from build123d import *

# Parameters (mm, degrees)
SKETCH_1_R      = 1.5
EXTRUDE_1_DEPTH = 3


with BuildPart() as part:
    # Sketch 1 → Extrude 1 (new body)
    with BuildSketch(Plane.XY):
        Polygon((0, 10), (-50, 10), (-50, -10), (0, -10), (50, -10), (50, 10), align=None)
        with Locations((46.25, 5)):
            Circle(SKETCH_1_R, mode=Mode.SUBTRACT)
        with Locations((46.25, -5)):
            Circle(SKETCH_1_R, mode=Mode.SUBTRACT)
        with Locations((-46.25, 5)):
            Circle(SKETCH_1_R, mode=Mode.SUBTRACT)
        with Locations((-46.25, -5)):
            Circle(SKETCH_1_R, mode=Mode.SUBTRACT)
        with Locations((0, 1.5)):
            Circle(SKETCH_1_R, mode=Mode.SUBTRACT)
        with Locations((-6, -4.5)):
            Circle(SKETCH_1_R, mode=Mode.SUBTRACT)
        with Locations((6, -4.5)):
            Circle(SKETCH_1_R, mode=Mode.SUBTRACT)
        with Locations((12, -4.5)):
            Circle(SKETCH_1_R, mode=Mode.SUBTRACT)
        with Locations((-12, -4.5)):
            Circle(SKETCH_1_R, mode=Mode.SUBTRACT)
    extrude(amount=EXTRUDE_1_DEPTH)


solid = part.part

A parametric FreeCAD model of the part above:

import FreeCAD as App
import Part
import Sketcher

V = App.Vector


def add_polygon(sketch, points):
    """Adds a closed chain of lines whose ends are joined by coincident constraints."""
    first, n = sketch.GeometryCount, len(points)
    for a, b in zip(points, points[1:] + points[:1]):
        sketch.addGeometry(Part.LineSegment(App.Vector(*a, 0), App.Vector(*b, 0)), False)
    for i in range(n):
        sketch.addConstraint(Sketcher.Constraint("Coincident", first + i, 2, first + (i + 1) % n, 1))

doc = App.newDocument("Part")
body = doc.addObject("PartDesign::Body", "Body")

# Sketch on XY plane
sketch1 = doc.addObject("Sketcher::SketchObject", "Sketch")
body.addObject(sketch1)
sketch1.AttachmentSupport = (doc.XY_Plane, [""])
sketch1.MapMode = "FlatFace"
add_polygon(sketch1, [(-50, 10), (-50, -10), (50, -10), (50, 10)])  # lines 0-3
sketch1.addGeometry(Part.Circle(V(-46.25, -5, 0), V(0, 0, 1), 1.5), False)  # 4
sketch1.addGeometry(Part.Circle(V(-12, -4.5, 0), V(0, 0, 1), 1.5), False)  # 5
sketch1.addGeometry(Part.Circle(V(-6, -4.5, 0), V(0, 0, 1), 1.5), False)  # 6
sketch1.addGeometry(Part.Circle(V(6, -4.5, 0), V(0, 0, 1), 1.5), False)  # 7
sketch1.addGeometry(Part.Circle(V(12, -4.5, 0), V(0, 0, 1), 1.5), False)  # 8
sketch1.addGeometry(Part.Circle(V(46.25, -5, 0), V(0, 0, 1), 1.5), False)  # 9
sketch1.addGeometry(Part.Circle(V(-46.25, 5, 0), V(0, 0, 1), 1.5), False)  # 10
sketch1.addGeometry(Part.Circle(V(0, 1.5, 0), V(0, 0, 1), 1.5), False)  # 11
sketch1.addGeometry(Part.Circle(V(46.25, 5, 0), V(0, 0, 1), 1.5), False)  # 12
sketch1.addConstraint([
    Sketcher.Constraint("Vertical", 0),
    Sketcher.Constraint("Horizontal", 1),
    Sketcher.Constraint("Vertical", 2),
    Sketcher.Constraint("Horizontal", 3),
    Sketcher.Constraint("Equal", 4, 5),
    Sketcher.Constraint("Equal", 5, 6),
    Sketcher.Constraint("Equal", 6, 7),
    Sketcher.Constraint("Equal", 7, 8),
    Sketcher.Constraint("Equal", 8, 9),
    Sketcher.Constraint("Equal", 9, 10),
    Sketcher.Constraint("Equal", 10, 11),
    Sketcher.Constraint("Equal", 11, 12),
    Sketcher.Constraint("Symmetric", 9, 3, 10, 3, -1, 1),
    Sketcher.Constraint("Symmetric", 4, 3, 12, 3, -1, 1),
    Sketcher.Constraint("Symmetric", 0, 2, 2, 2, -1, 1),
    Sketcher.Constraint("Symmetric", 6, 3, 7, 3, -2),
    Sketcher.Constraint("Symmetric", 5, 3, 8, 3, -2),
    Sketcher.Constraint("Symmetric", 4, 3, 9, 3, -2),
    Sketcher.Constraint("PointOnObject", 11, 3, -2),
    Sketcher.Constraint("Horizontal", 5, 3, 6, 3),
    Sketcher.Constraint("Diameter", 4, 3.0),
    Sketcher.Constraint("DistanceX", 1, 1, 1, 2, 100.0),
    Sketcher.Constraint("DistanceY", 0, 2, 0, 1, 20.0),
    Sketcher.Constraint("DistanceY", 4, 3, -1, 1, 5.0),
    Sketcher.Constraint("DistanceX", 5, 3, -1, 1, 12.0),
    Sketcher.Constraint("DistanceX", 6, 3, -1, 1, 6.0),
    Sketcher.Constraint("DistanceY", 6, 3, 11, 3, 6.0),
    Sketcher.Constraint("DistanceY", 5, 3, -1, 1, 4.5),
    Sketcher.Constraint("DistanceX", 4, 3, 9, 3, 92.5),
])
pad1 = doc.addObject("PartDesign::Pad", "Pad")
body.addObject(pad1)
pad1.Profile = sketch1
pad1.Length = 3

doc.recompute()
